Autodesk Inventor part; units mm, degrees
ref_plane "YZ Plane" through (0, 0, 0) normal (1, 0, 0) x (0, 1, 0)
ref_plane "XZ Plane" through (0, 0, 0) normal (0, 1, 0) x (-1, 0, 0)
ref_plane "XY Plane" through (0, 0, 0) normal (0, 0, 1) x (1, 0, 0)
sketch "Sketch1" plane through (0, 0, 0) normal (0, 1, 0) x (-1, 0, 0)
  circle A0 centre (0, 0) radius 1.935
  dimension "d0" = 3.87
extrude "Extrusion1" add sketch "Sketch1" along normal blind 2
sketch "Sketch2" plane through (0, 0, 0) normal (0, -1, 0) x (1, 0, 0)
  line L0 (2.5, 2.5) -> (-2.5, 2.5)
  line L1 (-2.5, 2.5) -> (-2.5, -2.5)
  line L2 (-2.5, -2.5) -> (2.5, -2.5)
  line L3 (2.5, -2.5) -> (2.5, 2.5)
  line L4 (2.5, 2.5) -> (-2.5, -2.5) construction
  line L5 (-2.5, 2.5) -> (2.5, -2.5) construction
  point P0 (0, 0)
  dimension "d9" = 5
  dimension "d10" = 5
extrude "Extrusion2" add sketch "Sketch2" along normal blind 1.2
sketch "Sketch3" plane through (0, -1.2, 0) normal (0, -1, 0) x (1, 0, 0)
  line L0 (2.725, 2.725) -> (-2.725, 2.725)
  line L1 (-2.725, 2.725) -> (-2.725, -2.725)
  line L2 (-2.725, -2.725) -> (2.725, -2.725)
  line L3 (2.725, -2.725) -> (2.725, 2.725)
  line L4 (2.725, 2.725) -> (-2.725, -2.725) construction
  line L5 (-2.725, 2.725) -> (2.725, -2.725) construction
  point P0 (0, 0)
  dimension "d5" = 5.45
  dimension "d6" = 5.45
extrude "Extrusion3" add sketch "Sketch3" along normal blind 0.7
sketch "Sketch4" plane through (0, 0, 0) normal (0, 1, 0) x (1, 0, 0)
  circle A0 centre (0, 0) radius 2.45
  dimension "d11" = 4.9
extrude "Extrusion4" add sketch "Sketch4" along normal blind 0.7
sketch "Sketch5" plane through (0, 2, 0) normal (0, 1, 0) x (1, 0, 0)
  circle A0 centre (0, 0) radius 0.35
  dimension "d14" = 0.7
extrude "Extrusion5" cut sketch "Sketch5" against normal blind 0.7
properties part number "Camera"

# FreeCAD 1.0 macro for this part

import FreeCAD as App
import Part
import Sketcher

V = App.Vector


def add_polygon(sketch, points):
    """Adds a closed chain of lines whose ends are joined by coincident constraints."""
    first, n = sketch.GeometryCount, len(points)
    for a, b in zip(points, points[1:] + points[:1]):
        sketch.addGeometry(Part.LineSegment(App.Vector(*a, 0), App.Vector(*b, 0)), False)
    for i in range(n):
        sketch.addConstraint(Sketcher.Constraint("Coincident", first + i, 2, first + (i + 1) % n, 1))

doc = App.newDocument("Part")
params = doc.addObject("Spreadsheet::Sheet", "Params")
for row, (alias, value) in enumerate([
    ("sketch1_diameter", "3.87 mm"),
    ("pad1_length", "2 mm"),
    ("sketch2_width", "5 mm"),
    ("pad2_length", "1.2 mm"),
    ("sketch3_width", "5.45 mm"),
    ("pad3_length", "0.7 mm"),
    ("sketch4_diameter", "4.9 mm"),
    ("pad4_length", "0.7 mm"),
    ("sketch5_diameter", "0.7 mm"),
    ("pocket1_length", "0.7 mm"),
], start=1):
    params.set(f"A{row}", alias)
    params.set(f"B{row}", "=" + value)
    params.setAlias(f"B{row}", alias)

body = doc.addObject("PartDesign::Body", "Body")

# Sketch on XZ plane
sketch1 = body.newObject("Sketcher::SketchObject", "Sketch")
sketch1.AttachmentSupport = (doc.getObject("XZ_Plane"), [""])
sketch1.MapMode = "FlatFace"
sketch1.addGeometry(Part.Circle(V(0, 0, 0), V(0, 0, 1), 1.9), False)
sketch1.addConstraint([
    Sketcher.Constraint("Coincident", 0, 3, -1, 1),
    Sketcher.Constraint("Diameter", 0, 3.87),
])
sketch1.setExpression("Constraints[1]", "Params.sketch1_diameter")
pad1 = body.newObject("PartDesign::Pad", "Pad")
pad1.Profile = sketch1
pad1.setExpression("Length", "Params.pad1_length")
pad1.Reversed = True

# Sketch on XZ plane
sketch2 = body.newObject("Sketcher::SketchObject", "Sketch001")
sketch2.AttachmentSupport = (doc.getObject("XZ_Plane"), [""])
sketch2.MapMode = "FlatFace"
add_polygon(sketch2, [(2, -2), (2, 2), (-2, 2), (-2, -2)])  # lines 0-3
sketch2.addConstraint([
    Sketcher.Constraint("Vertical", 0),
    Sketcher.Constraint("Horizontal", 1),
    Sketcher.Constraint("Vertical", 2),
    Sketcher.Constraint("Horizontal", 3),
    Sketcher.Constraint("Symmetric", 0, 2, 2, 2, -1, 1),
    Sketcher.Constraint("Equal", 3, 0),
    Sketcher.Constraint("DistanceX", 1, 2, 1, 1, 5.0),
])
sketch2.setExpression("Constraints[10]", "Params.sketch2_width")
pad2 = body.newObject("PartDesign::Pad", "Pad001")
pad2.Profile = sketch2
pad2.setExpression("Length", "Params.pad2_length")

# Sketch on XZ plane
sketch3 = body.newObject("Sketcher::SketchObject", "Sketch002")
sketch3.AttachmentSupport = (doc.getObject("XZ_Plane"), [""])
sketch3.MapMode = "FlatFace"
sketch3.AttachmentOffset = App.Placement(V(0, 0, 1.2), App.Rotation())
add_polygon(sketch3, [(3, -3), (3, 3), (-3, 3), (-3, -3)])  # lines 0-3
sketch3.addConstraint([
    Sketcher.Constraint("Vertical", 0),
    Sketcher.Constraint("Horizontal", 1),
    Sketcher.Constraint("Vertical", 2),
    Sketcher.Constraint("Horizontal", 3),
    Sketcher.Constraint("Symmetric", 0, 2, 2, 2, -1, 1),
    Sketcher.Constraint("Equal", 3, 0),
    Sketcher.Constraint("DistanceX", 1, 2, 1, 1, 5.45),
])
sketch3.setExpression("Constraints[10]", "Params.sketch3_width")
pad3 = body.newObject("PartDesign::Pad", "Pad002")
pad3.Profile = sketch3
pad3.setExpression("Length", "Params.pad3_length")

# Sketch on XZ plane
sketch4 = body.newObject("Sketcher::SketchObject", "Sketch003")
sketch4.AttachmentSupport = (doc.getObject("XZ_Plane"), [""])
sketch4.MapMode = "FlatFace"
sketch4.addGeometry(Part.Circle(V(0, 0, 0), V(0, 0, 1), 2.5), False)
sketch4.addConstraint([
    Sketcher.Constraint("Coincident", 0, 3, -1, 1),
    Sketcher.Constraint("Diameter", 0, 4.9),
])
sketch4.setExpression("Constraints[1]", "Params.sketch4_diameter")
pad4 = body.newObject("PartDesign::Pad", "Pad003")
pad4.Profile = sketch4
pad4.setExpression("Length", "Params.pad4_length")
pad4.Reversed = True

# Sketch on XZ plane
sketch5 = body.newObject("Sketcher::SketchObject", "Sketch004")
sketch5.AttachmentSupport = (doc.getObject("XZ_Plane"), [""])
sketch5.MapMode = "FlatFace"
sketch5.AttachmentOffset = App.Placement(V(0, 0, -2), App.Rotation())
sketch5.addGeometry(Part.Circle(V(0, 0, 0), V(0, 0, 1), 0.35), False)
sketch5.addConstraint([
    Sketcher.Constraint("Coincident", 0, 3, -1, 1),
    Sketcher.Constraint("Diameter", 0, 0.7),
])
sketch5.setExpression("Constraints[1]", "Params.sketch5_diameter")
pocket1 = body.newObject("PartDesign::Pocket", "Pocket")
pocket1.Profile = sketch5
pocket1.setExpression("Length", "Params.pocket1_length")
pocket1.Reversed = True

doc.recompute()
